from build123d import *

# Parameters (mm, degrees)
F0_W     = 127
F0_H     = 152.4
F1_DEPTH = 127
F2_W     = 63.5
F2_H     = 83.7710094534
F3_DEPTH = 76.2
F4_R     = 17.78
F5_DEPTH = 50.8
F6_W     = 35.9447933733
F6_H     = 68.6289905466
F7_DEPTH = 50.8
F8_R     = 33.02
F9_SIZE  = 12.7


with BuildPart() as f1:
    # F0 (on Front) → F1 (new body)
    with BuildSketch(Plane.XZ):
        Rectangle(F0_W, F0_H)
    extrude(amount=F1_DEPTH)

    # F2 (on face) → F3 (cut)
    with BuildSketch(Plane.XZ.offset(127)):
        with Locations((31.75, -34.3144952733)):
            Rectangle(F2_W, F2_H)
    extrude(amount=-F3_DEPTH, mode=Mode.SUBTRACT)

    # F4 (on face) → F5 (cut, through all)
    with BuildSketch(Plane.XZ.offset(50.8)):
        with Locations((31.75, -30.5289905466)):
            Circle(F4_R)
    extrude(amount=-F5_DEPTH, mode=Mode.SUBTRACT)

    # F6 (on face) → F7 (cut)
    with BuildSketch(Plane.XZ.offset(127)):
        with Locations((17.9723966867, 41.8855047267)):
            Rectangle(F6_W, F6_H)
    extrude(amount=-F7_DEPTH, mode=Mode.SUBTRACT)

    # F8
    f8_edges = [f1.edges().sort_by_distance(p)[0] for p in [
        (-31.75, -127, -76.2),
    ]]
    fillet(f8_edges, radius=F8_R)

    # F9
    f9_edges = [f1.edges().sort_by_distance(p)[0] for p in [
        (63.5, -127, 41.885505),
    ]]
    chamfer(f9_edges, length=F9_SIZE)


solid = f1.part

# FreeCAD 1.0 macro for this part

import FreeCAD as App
import Part
import Sketcher

V = App.Vector
Q = App.Units.Quantity


def edges_at(feature, points):
    """Names of the edges that pass closest to the given points."""
    edges = feature.Shape.Edges
    near = lambda p: min(range(len(edges)), key=lambda i: edges[i].distToShape(Part.Vertex(*p))[0])
    return sorted({f"Edge{near(p) + 1}" for p in points})

doc = App.newDocument("Part")
body = doc.addObject("PartDesign::Body", "Body")

# Sketch on XZ plane
sketch1 = doc.addObject("Sketcher::SketchObject", "Sketch")
body.addObject(sketch1)
sketch1.AttachmentSupport = (doc.XZ_Plane, [""])
sketch1.MapMode = "FlatFace"
sketch1.addGeometry([
    Part.LineSegment(V(-64, 76, 0), V(-64, -76, 0)),
    Part.LineSegment(V(-64, -76, 0), V(64, -76, 0)),
    Part.LineSegment(V(64, -76, 0), V(64, 76, 0)),
    Part.LineSegment(V(64, 76, 0), V(-64, 76, 0)),
], False)
sketch1.addConstraint([
    Sketcher.Constraint("Coincident", 0, 2, 1, 1),
    Sketcher.Constraint("Coincident", 1, 2, 2, 1),
    Sketcher.Constraint("Coincident", 2, 2, 3, 1),
    Sketcher.Constraint("Coincident", 3, 2, 0, 1),
    Sketcher.Constraint("Vertical", 0),
    Sketcher.Constraint("Horizontal", 1),
    Sketcher.Constraint("Vertical", 2),
    Sketcher.Constraint("Horizontal", 3),
    Sketcher.Constraint("Symmetric", 0, 2, 2, 2, -1, 1),
    Sketcher.Constraint("DistanceX", 1, 1, 1, 2, Q("5 in")),
    Sketcher.Constraint("DistanceY", 0, 2, 0, 1, Q("6 in")),
])
pad1 = doc.addObject("PartDesign::Pad", "Pad")
body.addObject(pad1)
pad1.Profile = sketch1
pad1.Length = Q("5 in")

# Sketch on XZ plane
sketch2 = doc.addObject("Sketcher::SketchObject", "Sketch001")
body.addObject(sketch2)
sketch2.AttachmentSupport = (doc.XZ_Plane, [""])
sketch2.MapMode = "FlatFace"
sketch2.AttachmentOffset = App.Placement(V(0, 0, 5 * 25.4), App.Rotation())
sketch2.addGeometry([
    Part.LineSegment(V(0, 8, 0), V(0, -76, 0)),
    Part.LineSegment(V(0, -76, 0), V(64, -76, 0)),
    Part.LineSegment(V(64, -76, 0), V(64, 8, 0)),
    Part.LineSegment(V(64, 8, 0), V(0, 8, 0)),
], False)
sketch2.addConstraint([
    Sketcher.Constraint("Coincident", 0, 2, 1, 1),
    Sketcher.Constraint("Coincident", 1, 2, 2, 1),
    Sketcher.Constraint("Coincident", 2, 2, 3, 1),
    Sketcher.Constraint("Coincident", 3, 2, 0, 1),
    Sketcher.Constraint("Vertical", 0),
    Sketcher.Constraint("Horizontal", 1),
    Sketcher.Constraint("Vertical", 2),
    Sketcher.Constraint("Horizontal", 3),
    Sketcher.Constraint("PointOnObject", 0, 2, -2),
    Sketcher.Constraint("DistanceX", 1, 1, 1, 2, Q("2.5 in")),
    Sketcher.Constraint("DistanceY", 0, 2, -1, 1, Q("3 in")),
    Sketcher.Constraint("DistanceY", 0, 2, 0, 1, 83.771009),
])
pocket1 = doc.addObject("PartDesign::Pocket", "Pocket")
body.addObject(pocket1)
pocket1.Profile = sketch2
pocket1.Length = Q("3 in")

# Sketch on XZ plane
sketch3 = doc.addObject("Sketcher::SketchObject", "Sketch002")
body.addObject(sketch3)
sketch3.AttachmentSupport = (doc.XZ_Plane, [""])
sketch3.MapMode = "FlatFace"
sketch3.AttachmentOffset = App.Placement(V(0, 0, 2 * 25.4), App.Rotation())
sketch3.addGeometry(Part.Circle(V(32, -31, 0), V(0, 0, 1), 18), False)
sketch3.addConstraint([
    Sketcher.Constraint("Diameter", 0, Q("1.4 in")),
    Sketcher.Constraint("DistanceX", -1, 1, 0, 3, Q("1.25 in")),
    Sketcher.Constraint("DistanceY", 0, 3, -1, 1, 30.528991),
])
pocket2 = doc.addObject("PartDesign::Pocket", "Pocket001")
body.addObject(pocket2)
pocket2.Profile = sketch3
pocket2.Type = "ThroughAll"

# Sketch on XZ plane
sketch4 = doc.addObject("Sketcher::SketchObject", "Sketch003")
body.addObject(sketch4)
sketch4.AttachmentSupport = (doc.XZ_Plane, [""])
sketch4.MapMode = "FlatFace"
sketch4.AttachmentOffset = App.Placement(V(0, 0, 5 * 25.4), App.Rotation())
sketch4.addGeometry([
    Part.LineSegment(V(0, 76, 0), V(0, 8, 0)),
    Part.LineSegment(V(0, 8, 0), V(36, 8, 0)),
    Part.LineSegment(V(36, 8, 0), V(36, 76, 0)),
    Part.LineSegment(V(36, 76, 0), V(0, 76, 0)),
], False)
sketch4.addConstraint([
    Sketcher.Constraint("Coincident", 0, 2, 1, 1),
    Sketcher.Constraint("Coincident", 1, 2, 2, 1),
    Sketcher.Constraint("Coincident", 2, 2, 3, 1),
    Sketcher.Constraint("Coincident", 3, 2, 0, 1),
    Sketcher.Constraint("Vertical", 0),
    Sketcher.Constraint("Horizontal", 1),
    Sketcher.Constraint("Vertical", 2),
    Sketcher.Constraint("Horizontal", 3),
    Sketcher.Constraint("PointOnObject", 0, 2, -2),
    Sketcher.Constraint("DistanceY", -1, 1, 2, 2, Q("3 in")),
    Sketcher.Constraint("DistanceY", 0, 2, 0, 1, 68.628991),
    Sketcher.Constraint("DistanceX", 1, 1, 1, 2, 35.944793),
])
pocket3 = doc.addObject("PartDesign::Pocket", "Pocket002")
body.addObject(pocket3)
pocket3.Profile = sketch4
pocket3.Length = Q("2 in")
doc.recompute()

fillet = doc.addObject("PartDesign::Fillet", "Fillet")
body.addObject(fillet)
fillet.Base = (pocket3, edges_at(pocket3, [(-31.75, -127, -76.2)]))
fillet.Radius = Q("1.3 in")
doc.recompute()

chamfer = doc.addObject("PartDesign::Chamfer", "Chamfer")
body.addObject(chamfer)
chamfer.Base = (fillet, edges_at(fillet, [(63.5, -127, 41.886)]))
chamfer.Size = Q("0.5 in")

doc.recompute()
